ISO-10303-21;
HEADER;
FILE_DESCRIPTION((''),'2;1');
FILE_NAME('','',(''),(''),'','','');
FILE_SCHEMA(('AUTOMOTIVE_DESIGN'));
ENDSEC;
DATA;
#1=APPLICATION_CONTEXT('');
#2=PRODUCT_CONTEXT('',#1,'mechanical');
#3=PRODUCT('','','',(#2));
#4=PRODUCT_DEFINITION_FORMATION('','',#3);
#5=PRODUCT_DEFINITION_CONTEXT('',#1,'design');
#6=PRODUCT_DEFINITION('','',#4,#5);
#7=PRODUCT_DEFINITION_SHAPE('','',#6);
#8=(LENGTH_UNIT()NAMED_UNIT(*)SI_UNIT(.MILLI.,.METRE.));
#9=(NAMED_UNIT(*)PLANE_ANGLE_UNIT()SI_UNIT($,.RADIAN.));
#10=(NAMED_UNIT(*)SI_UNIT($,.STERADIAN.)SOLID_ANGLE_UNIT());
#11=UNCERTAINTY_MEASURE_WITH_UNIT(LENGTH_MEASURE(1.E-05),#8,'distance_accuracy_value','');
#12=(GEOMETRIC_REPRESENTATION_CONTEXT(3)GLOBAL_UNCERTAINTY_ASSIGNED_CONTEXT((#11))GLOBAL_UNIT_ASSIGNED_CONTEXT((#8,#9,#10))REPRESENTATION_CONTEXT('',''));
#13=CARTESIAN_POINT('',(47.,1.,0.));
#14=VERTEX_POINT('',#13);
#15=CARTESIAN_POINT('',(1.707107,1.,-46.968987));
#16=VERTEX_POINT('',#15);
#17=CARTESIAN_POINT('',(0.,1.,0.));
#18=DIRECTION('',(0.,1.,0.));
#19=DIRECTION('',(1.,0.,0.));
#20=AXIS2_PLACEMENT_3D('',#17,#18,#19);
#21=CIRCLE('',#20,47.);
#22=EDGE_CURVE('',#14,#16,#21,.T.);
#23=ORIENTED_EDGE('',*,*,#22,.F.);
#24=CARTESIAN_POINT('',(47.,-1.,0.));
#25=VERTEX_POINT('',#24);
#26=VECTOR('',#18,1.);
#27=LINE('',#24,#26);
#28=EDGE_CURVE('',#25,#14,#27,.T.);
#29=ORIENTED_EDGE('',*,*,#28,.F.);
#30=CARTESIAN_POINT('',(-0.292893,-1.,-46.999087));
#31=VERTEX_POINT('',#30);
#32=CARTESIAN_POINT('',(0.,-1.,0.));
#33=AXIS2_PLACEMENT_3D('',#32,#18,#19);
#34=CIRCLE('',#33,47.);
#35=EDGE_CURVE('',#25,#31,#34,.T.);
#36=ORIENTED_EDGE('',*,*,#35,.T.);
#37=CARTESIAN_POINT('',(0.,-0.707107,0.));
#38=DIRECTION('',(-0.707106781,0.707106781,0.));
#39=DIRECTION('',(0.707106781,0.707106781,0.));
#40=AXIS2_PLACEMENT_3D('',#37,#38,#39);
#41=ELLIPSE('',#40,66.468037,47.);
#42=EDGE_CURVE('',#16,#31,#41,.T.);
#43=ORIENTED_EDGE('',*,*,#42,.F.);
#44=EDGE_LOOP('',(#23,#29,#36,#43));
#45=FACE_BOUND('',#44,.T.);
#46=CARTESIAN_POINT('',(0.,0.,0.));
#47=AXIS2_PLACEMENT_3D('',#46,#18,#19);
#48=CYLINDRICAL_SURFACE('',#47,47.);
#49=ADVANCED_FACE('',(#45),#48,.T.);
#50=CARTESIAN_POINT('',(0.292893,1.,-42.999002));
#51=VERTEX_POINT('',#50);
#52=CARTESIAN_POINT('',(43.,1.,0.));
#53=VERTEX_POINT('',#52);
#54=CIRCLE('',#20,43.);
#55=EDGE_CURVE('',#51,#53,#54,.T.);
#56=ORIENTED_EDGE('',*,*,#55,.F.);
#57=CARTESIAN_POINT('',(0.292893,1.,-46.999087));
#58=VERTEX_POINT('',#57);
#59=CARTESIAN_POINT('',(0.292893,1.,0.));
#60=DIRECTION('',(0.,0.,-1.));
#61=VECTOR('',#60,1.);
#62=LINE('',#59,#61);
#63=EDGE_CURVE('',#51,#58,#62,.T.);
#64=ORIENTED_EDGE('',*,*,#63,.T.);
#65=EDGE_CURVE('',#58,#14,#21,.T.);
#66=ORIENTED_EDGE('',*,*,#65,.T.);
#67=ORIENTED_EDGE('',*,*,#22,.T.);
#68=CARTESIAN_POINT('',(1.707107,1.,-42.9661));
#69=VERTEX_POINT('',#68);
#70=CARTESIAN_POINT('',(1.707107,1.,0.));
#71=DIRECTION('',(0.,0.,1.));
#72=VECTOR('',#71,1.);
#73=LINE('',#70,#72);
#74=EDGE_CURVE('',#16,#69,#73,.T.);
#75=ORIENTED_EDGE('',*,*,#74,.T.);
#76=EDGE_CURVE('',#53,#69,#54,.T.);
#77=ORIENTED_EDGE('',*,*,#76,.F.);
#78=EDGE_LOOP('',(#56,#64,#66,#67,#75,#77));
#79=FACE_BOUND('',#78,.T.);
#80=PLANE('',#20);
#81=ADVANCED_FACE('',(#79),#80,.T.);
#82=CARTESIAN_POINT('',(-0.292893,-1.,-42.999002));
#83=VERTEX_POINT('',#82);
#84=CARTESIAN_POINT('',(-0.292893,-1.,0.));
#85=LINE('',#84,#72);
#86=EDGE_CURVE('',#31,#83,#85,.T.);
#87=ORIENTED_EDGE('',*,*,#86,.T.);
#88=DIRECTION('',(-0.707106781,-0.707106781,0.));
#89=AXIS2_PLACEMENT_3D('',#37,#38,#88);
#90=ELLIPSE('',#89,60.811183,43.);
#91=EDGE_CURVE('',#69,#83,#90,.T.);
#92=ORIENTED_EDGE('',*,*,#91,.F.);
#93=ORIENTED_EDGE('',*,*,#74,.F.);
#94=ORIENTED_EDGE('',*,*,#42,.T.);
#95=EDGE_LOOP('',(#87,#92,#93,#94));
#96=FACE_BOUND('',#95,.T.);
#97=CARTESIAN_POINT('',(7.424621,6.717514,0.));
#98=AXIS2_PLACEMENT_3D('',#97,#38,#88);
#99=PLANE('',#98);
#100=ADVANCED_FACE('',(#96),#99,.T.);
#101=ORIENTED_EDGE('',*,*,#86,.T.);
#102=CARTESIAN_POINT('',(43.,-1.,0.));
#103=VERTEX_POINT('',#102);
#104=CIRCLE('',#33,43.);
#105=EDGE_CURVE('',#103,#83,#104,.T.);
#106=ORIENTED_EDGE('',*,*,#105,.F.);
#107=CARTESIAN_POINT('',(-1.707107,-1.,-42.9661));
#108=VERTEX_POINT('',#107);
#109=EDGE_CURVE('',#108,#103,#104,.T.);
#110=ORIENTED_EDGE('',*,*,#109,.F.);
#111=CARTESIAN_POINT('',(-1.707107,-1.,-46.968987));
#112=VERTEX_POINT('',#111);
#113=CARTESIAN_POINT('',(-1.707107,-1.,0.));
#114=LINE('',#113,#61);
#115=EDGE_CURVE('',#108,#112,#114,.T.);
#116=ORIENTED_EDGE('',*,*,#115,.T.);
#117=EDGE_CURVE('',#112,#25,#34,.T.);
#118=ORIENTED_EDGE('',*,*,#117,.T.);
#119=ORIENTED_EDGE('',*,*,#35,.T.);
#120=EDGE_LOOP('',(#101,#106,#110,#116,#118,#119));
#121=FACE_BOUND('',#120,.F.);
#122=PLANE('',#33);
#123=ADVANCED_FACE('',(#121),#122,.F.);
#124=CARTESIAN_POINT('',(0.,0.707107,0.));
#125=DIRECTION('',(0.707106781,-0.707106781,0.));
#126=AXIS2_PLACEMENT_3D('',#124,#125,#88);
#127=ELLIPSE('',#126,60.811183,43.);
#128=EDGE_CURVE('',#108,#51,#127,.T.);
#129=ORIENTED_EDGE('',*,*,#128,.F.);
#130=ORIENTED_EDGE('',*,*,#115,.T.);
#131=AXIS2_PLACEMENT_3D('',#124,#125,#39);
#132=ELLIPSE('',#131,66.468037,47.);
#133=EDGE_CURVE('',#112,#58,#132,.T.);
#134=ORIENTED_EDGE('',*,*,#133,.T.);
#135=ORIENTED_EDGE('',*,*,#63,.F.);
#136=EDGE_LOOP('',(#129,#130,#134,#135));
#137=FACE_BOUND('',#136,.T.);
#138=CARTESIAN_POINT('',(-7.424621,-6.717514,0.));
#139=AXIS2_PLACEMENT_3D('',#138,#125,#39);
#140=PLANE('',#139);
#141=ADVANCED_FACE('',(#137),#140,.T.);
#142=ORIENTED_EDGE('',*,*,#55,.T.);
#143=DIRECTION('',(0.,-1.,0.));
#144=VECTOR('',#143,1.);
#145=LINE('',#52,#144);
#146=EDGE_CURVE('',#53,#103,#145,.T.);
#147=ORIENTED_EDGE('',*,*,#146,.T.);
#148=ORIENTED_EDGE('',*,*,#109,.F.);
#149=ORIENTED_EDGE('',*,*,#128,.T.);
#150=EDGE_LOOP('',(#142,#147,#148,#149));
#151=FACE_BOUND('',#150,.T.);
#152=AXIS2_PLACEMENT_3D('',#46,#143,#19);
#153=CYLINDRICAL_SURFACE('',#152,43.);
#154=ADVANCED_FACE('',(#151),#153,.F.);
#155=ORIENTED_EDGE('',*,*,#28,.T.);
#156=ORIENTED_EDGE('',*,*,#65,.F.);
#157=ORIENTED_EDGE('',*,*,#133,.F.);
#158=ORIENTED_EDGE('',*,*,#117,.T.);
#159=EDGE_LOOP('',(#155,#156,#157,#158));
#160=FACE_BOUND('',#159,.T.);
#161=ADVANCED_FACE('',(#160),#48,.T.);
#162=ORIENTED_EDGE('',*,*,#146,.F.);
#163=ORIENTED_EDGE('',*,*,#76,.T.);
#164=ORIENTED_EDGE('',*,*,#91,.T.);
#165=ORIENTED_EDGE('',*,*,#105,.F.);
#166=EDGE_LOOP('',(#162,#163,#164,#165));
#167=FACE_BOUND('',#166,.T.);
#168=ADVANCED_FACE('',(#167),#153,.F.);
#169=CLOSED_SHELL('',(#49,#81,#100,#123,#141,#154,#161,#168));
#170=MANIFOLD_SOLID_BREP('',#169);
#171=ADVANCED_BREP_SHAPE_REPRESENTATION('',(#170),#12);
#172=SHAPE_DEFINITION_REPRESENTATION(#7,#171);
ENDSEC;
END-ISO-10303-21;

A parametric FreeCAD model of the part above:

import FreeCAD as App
import Part
import Sketcher
Q = App.Units.Quantity


def add_polygon(sketch, points):
    """Adds a closed chain of lines whose ends are joined by coincident constraints."""
    first, n = sketch.GeometryCount, len(points)
    for a, b in zip(points, points[1:] + points[:1]):
        sketch.addGeometry(Part.LineSegment(App.Vector(*a, 0), App.Vector(*b, 0)), False)
    for i in range(n):
        sketch.addConstraint(Sketcher.Constraint("Coincident", first + i, 2, first + (i + 1) % n, 1))

doc = App.newDocument("Part")
body = doc.addObject("PartDesign::Body", "Body")

# Sketch on XZ plane
sketch1 = body.newObject("Sketcher::SketchObject", "Sketch")
sketch1.AttachmentSupport = (doc.getObject("XZ_Plane"), [""])
sketch1.MapMode = "FlatFace"
sketch1.addGeometry(Part.Circle(App.Vector(0, 0, 0), App.Vector(0, 0, 1), 47), False)
sketch1.addGeometry(Part.Circle(App.Vector(0, 0, 0), App.Vector(0, 0, 1), 43), False)
sketch1.addConstraint(Sketcher.Constraint("Coincident", 0, 3, -1, 1))
sketch1.addConstraint(Sketcher.Constraint("Coincident", 1, 3, -1, 1))
sketch1.addConstraint(Sketcher.Constraint("Diameter", 0, Q("94 mm")))
sketch1.addConstraint(Sketcher.Constraint("Diameter", 1, Q("86 mm")))
pad1 = body.newObject("PartDesign::Pad", "Pad")
pad1.Profile = sketch1
pad1.Length = 2
pad1.Midplane = True

# Sketch on XY plane
sketch2 = body.newObject("Sketcher::SketchObject", "Sketch001")
sketch2.AttachmentSupport = (doc.getObject("XY_Plane"), [""])
sketch2.MapMode = "FlatFace"
add_polygon(sketch2, [(6.717514, 7.424621), (-7.424621, -6.717514), (-6.717514, -7.424621), (7.424621, 6.717514)])  # lines 0-3
sketch2.addConstraint(Sketcher.Constraint("Symmetric", 0, 2, 2, 2, -1, 1))
sketch2.addConstraint(Sketcher.Constraint("Symmetric", 1, 2, 3, 2, -1, 1))
sketch2.addConstraint(Sketcher.Constraint("Perpendicular", 0, 1))
sketch2.addConstraint(Sketcher.Constraint("Angle", 0, Q("-135 deg")))
sketch2.addConstraint(Sketcher.Constraint("Distance", 0, Q("20 mm")))
sketch2.addConstraint(Sketcher.Constraint("Distance", 1, Q("1 mm")))
pocket1 = body.newObject("PartDesign::Pocket", "Pocket")
pocket1.Profile = sketch2
pocket1.Type = "ThroughAll"

doc.recompute()
